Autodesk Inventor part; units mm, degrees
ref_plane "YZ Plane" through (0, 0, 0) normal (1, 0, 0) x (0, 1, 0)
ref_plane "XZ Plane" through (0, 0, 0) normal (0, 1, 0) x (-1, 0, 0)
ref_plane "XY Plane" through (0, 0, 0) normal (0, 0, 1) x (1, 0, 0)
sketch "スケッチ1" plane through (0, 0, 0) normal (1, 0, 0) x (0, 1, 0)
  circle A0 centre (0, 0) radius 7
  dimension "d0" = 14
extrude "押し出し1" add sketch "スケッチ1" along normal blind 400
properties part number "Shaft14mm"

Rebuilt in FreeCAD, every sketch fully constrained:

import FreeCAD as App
import Part
import Sketcher
Q = App.Units.Quantity

doc = App.newDocument("Part")
body = doc.addObject("PartDesign::Body", "Body")

# Sketch on YZ plane
sketch1 = body.newObject("Sketcher::SketchObject", "Sketch")
sketch1.AttachmentSupport = (doc.getObject("YZ_Plane"), [""])
sketch1.MapMode = "FlatFace"
sketch1.addGeometry(Part.Circle(App.Vector(0, 0, 0), App.Vector(0, 0, 1), 7), False)
sketch1.addConstraint(Sketcher.Constraint("Coincident", 0, 3, -1, 1))
sketch1.addConstraint(Sketcher.Constraint("Diameter", 0, Q("14 mm")))
pad1 = body.newObject("PartDesign::Pad", "Pad")
pad1.Profile = sketch1
pad1.Length = 400

doc.recompute()
